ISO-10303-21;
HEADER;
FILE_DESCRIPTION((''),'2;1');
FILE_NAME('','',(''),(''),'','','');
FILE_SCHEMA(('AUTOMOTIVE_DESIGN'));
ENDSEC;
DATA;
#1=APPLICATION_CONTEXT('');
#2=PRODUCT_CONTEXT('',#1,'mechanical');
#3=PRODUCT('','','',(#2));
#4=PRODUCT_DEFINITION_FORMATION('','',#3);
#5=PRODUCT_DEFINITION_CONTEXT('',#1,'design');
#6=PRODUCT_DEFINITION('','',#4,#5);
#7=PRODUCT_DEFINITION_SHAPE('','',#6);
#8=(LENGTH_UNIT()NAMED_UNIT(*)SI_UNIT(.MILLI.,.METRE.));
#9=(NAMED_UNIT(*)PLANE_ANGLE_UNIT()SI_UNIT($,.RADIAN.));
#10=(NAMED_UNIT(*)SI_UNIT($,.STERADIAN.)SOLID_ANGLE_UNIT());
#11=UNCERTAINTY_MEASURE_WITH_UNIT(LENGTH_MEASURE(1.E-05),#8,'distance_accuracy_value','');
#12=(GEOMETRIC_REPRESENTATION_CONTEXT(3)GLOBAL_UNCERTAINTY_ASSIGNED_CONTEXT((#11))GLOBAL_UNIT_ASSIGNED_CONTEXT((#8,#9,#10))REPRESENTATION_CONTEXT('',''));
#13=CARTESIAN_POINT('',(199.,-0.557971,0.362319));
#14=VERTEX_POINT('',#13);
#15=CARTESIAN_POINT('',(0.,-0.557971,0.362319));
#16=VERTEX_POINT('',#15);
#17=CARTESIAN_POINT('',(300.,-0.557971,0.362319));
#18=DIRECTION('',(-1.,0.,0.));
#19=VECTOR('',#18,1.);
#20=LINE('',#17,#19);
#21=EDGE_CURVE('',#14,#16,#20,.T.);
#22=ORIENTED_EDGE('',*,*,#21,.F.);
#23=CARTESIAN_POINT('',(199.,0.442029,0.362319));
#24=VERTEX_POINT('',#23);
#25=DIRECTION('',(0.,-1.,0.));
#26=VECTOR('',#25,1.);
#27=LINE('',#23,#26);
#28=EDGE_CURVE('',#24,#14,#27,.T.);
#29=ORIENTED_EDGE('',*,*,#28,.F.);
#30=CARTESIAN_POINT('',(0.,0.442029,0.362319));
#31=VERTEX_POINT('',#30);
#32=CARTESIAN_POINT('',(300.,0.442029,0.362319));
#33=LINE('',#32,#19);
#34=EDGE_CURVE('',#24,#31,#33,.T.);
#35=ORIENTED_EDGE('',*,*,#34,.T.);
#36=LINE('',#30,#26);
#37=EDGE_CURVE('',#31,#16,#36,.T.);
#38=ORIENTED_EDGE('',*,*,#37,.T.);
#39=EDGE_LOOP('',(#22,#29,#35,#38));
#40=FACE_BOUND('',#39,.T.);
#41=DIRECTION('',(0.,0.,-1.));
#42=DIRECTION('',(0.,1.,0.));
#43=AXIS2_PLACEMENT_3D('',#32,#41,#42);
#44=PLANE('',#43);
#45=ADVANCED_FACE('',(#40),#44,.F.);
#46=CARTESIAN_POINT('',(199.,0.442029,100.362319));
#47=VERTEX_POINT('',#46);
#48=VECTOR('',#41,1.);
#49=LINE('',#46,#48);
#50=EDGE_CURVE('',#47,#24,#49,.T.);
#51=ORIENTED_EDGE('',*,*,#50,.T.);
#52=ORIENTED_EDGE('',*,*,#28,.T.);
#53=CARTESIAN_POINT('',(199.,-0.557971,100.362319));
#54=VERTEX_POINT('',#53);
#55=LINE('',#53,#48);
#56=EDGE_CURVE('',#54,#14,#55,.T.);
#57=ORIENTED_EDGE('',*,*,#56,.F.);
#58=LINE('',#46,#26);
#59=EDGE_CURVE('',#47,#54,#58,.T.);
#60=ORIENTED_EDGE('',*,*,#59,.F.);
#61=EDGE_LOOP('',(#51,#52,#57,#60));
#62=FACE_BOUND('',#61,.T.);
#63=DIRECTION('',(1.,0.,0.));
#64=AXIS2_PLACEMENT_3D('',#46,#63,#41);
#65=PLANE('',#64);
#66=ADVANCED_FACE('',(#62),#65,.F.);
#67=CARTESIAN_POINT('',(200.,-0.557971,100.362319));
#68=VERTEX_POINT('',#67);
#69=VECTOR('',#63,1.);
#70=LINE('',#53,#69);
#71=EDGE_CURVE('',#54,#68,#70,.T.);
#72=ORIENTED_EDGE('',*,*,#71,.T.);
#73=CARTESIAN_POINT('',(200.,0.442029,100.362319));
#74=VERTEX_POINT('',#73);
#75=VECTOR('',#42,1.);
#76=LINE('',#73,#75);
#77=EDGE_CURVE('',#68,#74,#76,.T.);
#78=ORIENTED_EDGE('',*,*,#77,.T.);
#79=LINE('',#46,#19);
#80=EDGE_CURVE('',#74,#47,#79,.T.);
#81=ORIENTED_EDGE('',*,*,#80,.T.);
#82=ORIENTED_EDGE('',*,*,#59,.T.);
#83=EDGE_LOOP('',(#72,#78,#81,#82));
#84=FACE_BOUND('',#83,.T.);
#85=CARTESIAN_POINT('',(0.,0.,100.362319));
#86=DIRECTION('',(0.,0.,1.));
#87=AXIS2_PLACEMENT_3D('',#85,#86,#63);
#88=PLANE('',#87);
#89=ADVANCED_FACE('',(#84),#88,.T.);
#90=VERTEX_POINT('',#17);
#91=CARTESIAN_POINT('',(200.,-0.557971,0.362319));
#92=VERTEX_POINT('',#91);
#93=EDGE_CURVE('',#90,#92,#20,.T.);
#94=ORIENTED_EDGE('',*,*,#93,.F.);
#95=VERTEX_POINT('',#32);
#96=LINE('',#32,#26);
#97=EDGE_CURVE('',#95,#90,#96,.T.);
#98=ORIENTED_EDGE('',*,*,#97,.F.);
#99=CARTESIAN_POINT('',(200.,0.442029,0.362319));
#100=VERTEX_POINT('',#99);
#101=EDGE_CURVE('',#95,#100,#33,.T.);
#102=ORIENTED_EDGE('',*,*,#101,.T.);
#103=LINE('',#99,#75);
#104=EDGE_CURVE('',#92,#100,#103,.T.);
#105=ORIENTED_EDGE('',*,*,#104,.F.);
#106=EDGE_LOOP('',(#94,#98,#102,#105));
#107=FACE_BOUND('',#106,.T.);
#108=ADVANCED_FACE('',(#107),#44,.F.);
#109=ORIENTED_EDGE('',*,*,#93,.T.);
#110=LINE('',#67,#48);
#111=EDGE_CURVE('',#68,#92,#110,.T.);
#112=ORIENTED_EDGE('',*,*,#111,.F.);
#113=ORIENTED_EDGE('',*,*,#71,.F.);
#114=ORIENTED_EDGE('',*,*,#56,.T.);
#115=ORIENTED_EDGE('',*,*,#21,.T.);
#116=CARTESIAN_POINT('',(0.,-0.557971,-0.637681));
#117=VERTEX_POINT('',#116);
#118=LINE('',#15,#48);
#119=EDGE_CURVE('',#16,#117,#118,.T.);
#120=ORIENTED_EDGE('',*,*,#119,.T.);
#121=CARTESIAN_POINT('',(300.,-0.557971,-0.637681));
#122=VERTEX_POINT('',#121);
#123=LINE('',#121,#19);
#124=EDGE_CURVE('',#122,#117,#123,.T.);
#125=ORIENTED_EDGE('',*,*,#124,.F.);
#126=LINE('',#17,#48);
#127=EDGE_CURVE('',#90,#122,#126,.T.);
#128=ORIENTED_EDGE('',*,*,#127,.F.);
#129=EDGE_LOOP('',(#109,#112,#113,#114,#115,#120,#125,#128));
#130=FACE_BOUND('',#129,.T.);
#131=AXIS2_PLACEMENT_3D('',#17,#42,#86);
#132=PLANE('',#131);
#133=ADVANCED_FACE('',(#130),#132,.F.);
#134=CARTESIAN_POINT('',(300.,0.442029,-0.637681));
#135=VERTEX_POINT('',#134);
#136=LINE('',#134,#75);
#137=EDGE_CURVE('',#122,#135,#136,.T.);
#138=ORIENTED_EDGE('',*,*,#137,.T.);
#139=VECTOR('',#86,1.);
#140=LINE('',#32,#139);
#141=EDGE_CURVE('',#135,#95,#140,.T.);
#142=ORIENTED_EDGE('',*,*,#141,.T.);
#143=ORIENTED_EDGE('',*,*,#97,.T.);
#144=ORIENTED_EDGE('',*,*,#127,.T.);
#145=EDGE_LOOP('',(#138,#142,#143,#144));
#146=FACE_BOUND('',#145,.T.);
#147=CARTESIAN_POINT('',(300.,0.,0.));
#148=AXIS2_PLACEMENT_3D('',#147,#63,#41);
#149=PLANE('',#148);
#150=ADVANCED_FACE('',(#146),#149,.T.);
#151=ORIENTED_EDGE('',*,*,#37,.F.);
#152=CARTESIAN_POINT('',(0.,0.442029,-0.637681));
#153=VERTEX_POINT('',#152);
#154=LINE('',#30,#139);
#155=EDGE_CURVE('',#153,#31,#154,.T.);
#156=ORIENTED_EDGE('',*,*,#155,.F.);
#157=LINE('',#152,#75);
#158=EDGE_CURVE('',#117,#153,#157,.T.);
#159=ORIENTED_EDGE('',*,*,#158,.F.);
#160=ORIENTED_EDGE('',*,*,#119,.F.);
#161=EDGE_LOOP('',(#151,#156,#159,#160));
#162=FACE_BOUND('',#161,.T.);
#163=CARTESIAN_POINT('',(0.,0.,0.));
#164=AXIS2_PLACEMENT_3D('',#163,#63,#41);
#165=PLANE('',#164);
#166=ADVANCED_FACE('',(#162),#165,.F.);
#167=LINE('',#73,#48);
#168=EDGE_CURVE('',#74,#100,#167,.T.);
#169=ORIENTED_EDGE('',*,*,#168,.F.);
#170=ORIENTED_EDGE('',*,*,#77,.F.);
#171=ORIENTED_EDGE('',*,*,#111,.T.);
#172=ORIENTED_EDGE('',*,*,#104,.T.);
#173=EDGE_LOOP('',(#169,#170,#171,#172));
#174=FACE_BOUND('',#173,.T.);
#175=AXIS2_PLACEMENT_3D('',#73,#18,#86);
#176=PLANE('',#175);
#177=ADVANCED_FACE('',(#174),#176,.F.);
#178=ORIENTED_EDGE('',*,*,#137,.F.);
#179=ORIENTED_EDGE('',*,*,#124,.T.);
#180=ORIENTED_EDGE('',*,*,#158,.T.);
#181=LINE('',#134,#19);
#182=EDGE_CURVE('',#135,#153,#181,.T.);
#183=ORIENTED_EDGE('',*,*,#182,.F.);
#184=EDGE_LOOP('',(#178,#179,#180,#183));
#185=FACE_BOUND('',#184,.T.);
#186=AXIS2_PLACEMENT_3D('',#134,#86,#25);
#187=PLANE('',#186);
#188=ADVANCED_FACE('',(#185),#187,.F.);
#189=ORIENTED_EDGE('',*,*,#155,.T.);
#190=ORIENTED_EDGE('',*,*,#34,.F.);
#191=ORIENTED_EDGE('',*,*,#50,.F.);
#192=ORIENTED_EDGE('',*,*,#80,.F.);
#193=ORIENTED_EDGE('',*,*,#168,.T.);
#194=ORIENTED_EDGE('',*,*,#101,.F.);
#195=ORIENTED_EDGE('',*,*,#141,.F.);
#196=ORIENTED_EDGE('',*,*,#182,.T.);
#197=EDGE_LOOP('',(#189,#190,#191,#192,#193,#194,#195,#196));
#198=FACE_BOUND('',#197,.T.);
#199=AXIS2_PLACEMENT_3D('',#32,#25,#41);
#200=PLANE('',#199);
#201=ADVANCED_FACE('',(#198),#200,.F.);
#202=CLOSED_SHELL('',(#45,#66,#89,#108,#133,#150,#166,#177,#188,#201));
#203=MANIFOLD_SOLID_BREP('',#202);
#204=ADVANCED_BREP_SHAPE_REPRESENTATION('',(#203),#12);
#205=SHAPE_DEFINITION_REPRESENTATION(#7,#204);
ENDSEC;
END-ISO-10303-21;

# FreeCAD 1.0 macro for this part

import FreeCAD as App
import Part
import Sketcher
from FreeCAD import Vector

doc = App.newDocument("Part")
body = doc.addObject("PartDesign::Body", "Body")

sketch1 = doc.addObject("Sketcher::SketchObject", "Sketch")
body.addObject(sketch1)
sketch1.AttachmentSupport = (doc.YZ_Plane, [""])
sketch1.MapMode = "FlatFace"
sketch1.addGeometry(Part.LineSegment(Vector(0.4, 0.4, 0), Vector(-0.6, 0.4, 0)), False)
sketch1.addGeometry(Part.LineSegment(Vector(-0.6, 0.4, 0), Vector(-0.6, -0.6, 0)), False)
sketch1.addGeometry(Part.LineSegment(Vector(-0.6, -0.6, 0), Vector(0.4, -0.6, 0)), False)
sketch1.addGeometry(Part.LineSegment(Vector(0.4, -0.6, 0), Vector(0.4, 0.4, 0)), False)
sketch1.addConstraint(Sketcher.Constraint("Coincident", 0, 2, 1, 1))
sketch1.addConstraint(Sketcher.Constraint("Coincident", 1, 2, 2, 1))
sketch1.addConstraint(Sketcher.Constraint("Coincident", 2, 2, 3, 1))
sketch1.addConstraint(Sketcher.Constraint("Coincident", 3, 2, 0, 1))
sketch1.addConstraint(Sketcher.Constraint("Horizontal", 0))
sketch1.addConstraint(Sketcher.Constraint("Vertical", 1))
sketch1.addConstraint(Sketcher.Constraint("Horizontal", 2))
sketch1.addConstraint(Sketcher.Constraint("Vertical", 3))
sketch1.addConstraint(Sketcher.Constraint("Equal", 2, 1))
sketch1.addConstraint(Sketcher.Constraint("DistanceX", 0, 2, 0, 1, 1.0))
sketch1.addConstraint(Sketcher.Constraint("DistanceX", 0, 2, -1, 1, 0.557971))
sketch1.addConstraint(Sketcher.Constraint("DistanceY", -1, 1, 0, 2, 0.362319))
pad1 = doc.addObject("PartDesign::Pad", "Pad")
body.addObject(pad1)
pad1.Profile = sketch1
pad1.Length = 300

sketch2 = doc.addObject("Sketcher::SketchObject", "Sketch001")
body.addObject(sketch2)
sketch2.AttachmentSupport = (doc.XY_Plane, [""])
sketch2.MapMode = "FlatFace"
sketch2.AttachmentOffset = App.Placement(Vector(0, 0, 0.362319), App.Rotation())
sketch2.addGeometry(Part.LineSegment(Vector(199, 0.4, 0), Vector(199, -0.6, 0)), False)
sketch2.addGeometry(Part.LineSegment(Vector(199, -0.6, 0), Vector(200, -0.6, 0)), False)
sketch2.addGeometry(Part.LineSegment(Vector(200, -0.6, 0), Vector(200, 0.4, 0)), False)
sketch2.addGeometry(Part.LineSegment(Vector(200, 0.4, 0), Vector(199, 0.4, 0)), False)
sketch2.addConstraint(Sketcher.Constraint("Coincident", 0, 2, 1, 1))
sketch2.addConstraint(Sketcher.Constraint("Coincident", 1, 2, 2, 1))
sketch2.addConstraint(Sketcher.Constraint("Coincident", 2, 2, 3, 1))
sketch2.addConstraint(Sketcher.Constraint("Coincident", 3, 2, 0, 1))
sketch2.addConstraint(Sketcher.Constraint("Vertical", 0))
sketch2.addConstraint(Sketcher.Constraint("Horizontal", 1))
sketch2.addConstraint(Sketcher.Constraint("Vertical", 2))
sketch2.addConstraint(Sketcher.Constraint("Horizontal", 3))
sketch2.addConstraint(Sketcher.Constraint("Equal", 3, 0))
sketch2.addConstraint(Sketcher.Constraint("DistanceX", 1, 1, 1, 2, 1.0))
sketch2.addConstraint(Sketcher.Constraint("DistanceX", -1, 1, 0, 2, 199.0))
sketch2.addConstraint(Sketcher.Constraint("DistanceY", 0, 2, -1, 1, 0.557971))
pad2 = doc.addObject("PartDesign::Pad", "Pad001")
body.addObject(pad2)
pad2.Profile = sketch2
pad2.Length = 100

doc.recompute()
